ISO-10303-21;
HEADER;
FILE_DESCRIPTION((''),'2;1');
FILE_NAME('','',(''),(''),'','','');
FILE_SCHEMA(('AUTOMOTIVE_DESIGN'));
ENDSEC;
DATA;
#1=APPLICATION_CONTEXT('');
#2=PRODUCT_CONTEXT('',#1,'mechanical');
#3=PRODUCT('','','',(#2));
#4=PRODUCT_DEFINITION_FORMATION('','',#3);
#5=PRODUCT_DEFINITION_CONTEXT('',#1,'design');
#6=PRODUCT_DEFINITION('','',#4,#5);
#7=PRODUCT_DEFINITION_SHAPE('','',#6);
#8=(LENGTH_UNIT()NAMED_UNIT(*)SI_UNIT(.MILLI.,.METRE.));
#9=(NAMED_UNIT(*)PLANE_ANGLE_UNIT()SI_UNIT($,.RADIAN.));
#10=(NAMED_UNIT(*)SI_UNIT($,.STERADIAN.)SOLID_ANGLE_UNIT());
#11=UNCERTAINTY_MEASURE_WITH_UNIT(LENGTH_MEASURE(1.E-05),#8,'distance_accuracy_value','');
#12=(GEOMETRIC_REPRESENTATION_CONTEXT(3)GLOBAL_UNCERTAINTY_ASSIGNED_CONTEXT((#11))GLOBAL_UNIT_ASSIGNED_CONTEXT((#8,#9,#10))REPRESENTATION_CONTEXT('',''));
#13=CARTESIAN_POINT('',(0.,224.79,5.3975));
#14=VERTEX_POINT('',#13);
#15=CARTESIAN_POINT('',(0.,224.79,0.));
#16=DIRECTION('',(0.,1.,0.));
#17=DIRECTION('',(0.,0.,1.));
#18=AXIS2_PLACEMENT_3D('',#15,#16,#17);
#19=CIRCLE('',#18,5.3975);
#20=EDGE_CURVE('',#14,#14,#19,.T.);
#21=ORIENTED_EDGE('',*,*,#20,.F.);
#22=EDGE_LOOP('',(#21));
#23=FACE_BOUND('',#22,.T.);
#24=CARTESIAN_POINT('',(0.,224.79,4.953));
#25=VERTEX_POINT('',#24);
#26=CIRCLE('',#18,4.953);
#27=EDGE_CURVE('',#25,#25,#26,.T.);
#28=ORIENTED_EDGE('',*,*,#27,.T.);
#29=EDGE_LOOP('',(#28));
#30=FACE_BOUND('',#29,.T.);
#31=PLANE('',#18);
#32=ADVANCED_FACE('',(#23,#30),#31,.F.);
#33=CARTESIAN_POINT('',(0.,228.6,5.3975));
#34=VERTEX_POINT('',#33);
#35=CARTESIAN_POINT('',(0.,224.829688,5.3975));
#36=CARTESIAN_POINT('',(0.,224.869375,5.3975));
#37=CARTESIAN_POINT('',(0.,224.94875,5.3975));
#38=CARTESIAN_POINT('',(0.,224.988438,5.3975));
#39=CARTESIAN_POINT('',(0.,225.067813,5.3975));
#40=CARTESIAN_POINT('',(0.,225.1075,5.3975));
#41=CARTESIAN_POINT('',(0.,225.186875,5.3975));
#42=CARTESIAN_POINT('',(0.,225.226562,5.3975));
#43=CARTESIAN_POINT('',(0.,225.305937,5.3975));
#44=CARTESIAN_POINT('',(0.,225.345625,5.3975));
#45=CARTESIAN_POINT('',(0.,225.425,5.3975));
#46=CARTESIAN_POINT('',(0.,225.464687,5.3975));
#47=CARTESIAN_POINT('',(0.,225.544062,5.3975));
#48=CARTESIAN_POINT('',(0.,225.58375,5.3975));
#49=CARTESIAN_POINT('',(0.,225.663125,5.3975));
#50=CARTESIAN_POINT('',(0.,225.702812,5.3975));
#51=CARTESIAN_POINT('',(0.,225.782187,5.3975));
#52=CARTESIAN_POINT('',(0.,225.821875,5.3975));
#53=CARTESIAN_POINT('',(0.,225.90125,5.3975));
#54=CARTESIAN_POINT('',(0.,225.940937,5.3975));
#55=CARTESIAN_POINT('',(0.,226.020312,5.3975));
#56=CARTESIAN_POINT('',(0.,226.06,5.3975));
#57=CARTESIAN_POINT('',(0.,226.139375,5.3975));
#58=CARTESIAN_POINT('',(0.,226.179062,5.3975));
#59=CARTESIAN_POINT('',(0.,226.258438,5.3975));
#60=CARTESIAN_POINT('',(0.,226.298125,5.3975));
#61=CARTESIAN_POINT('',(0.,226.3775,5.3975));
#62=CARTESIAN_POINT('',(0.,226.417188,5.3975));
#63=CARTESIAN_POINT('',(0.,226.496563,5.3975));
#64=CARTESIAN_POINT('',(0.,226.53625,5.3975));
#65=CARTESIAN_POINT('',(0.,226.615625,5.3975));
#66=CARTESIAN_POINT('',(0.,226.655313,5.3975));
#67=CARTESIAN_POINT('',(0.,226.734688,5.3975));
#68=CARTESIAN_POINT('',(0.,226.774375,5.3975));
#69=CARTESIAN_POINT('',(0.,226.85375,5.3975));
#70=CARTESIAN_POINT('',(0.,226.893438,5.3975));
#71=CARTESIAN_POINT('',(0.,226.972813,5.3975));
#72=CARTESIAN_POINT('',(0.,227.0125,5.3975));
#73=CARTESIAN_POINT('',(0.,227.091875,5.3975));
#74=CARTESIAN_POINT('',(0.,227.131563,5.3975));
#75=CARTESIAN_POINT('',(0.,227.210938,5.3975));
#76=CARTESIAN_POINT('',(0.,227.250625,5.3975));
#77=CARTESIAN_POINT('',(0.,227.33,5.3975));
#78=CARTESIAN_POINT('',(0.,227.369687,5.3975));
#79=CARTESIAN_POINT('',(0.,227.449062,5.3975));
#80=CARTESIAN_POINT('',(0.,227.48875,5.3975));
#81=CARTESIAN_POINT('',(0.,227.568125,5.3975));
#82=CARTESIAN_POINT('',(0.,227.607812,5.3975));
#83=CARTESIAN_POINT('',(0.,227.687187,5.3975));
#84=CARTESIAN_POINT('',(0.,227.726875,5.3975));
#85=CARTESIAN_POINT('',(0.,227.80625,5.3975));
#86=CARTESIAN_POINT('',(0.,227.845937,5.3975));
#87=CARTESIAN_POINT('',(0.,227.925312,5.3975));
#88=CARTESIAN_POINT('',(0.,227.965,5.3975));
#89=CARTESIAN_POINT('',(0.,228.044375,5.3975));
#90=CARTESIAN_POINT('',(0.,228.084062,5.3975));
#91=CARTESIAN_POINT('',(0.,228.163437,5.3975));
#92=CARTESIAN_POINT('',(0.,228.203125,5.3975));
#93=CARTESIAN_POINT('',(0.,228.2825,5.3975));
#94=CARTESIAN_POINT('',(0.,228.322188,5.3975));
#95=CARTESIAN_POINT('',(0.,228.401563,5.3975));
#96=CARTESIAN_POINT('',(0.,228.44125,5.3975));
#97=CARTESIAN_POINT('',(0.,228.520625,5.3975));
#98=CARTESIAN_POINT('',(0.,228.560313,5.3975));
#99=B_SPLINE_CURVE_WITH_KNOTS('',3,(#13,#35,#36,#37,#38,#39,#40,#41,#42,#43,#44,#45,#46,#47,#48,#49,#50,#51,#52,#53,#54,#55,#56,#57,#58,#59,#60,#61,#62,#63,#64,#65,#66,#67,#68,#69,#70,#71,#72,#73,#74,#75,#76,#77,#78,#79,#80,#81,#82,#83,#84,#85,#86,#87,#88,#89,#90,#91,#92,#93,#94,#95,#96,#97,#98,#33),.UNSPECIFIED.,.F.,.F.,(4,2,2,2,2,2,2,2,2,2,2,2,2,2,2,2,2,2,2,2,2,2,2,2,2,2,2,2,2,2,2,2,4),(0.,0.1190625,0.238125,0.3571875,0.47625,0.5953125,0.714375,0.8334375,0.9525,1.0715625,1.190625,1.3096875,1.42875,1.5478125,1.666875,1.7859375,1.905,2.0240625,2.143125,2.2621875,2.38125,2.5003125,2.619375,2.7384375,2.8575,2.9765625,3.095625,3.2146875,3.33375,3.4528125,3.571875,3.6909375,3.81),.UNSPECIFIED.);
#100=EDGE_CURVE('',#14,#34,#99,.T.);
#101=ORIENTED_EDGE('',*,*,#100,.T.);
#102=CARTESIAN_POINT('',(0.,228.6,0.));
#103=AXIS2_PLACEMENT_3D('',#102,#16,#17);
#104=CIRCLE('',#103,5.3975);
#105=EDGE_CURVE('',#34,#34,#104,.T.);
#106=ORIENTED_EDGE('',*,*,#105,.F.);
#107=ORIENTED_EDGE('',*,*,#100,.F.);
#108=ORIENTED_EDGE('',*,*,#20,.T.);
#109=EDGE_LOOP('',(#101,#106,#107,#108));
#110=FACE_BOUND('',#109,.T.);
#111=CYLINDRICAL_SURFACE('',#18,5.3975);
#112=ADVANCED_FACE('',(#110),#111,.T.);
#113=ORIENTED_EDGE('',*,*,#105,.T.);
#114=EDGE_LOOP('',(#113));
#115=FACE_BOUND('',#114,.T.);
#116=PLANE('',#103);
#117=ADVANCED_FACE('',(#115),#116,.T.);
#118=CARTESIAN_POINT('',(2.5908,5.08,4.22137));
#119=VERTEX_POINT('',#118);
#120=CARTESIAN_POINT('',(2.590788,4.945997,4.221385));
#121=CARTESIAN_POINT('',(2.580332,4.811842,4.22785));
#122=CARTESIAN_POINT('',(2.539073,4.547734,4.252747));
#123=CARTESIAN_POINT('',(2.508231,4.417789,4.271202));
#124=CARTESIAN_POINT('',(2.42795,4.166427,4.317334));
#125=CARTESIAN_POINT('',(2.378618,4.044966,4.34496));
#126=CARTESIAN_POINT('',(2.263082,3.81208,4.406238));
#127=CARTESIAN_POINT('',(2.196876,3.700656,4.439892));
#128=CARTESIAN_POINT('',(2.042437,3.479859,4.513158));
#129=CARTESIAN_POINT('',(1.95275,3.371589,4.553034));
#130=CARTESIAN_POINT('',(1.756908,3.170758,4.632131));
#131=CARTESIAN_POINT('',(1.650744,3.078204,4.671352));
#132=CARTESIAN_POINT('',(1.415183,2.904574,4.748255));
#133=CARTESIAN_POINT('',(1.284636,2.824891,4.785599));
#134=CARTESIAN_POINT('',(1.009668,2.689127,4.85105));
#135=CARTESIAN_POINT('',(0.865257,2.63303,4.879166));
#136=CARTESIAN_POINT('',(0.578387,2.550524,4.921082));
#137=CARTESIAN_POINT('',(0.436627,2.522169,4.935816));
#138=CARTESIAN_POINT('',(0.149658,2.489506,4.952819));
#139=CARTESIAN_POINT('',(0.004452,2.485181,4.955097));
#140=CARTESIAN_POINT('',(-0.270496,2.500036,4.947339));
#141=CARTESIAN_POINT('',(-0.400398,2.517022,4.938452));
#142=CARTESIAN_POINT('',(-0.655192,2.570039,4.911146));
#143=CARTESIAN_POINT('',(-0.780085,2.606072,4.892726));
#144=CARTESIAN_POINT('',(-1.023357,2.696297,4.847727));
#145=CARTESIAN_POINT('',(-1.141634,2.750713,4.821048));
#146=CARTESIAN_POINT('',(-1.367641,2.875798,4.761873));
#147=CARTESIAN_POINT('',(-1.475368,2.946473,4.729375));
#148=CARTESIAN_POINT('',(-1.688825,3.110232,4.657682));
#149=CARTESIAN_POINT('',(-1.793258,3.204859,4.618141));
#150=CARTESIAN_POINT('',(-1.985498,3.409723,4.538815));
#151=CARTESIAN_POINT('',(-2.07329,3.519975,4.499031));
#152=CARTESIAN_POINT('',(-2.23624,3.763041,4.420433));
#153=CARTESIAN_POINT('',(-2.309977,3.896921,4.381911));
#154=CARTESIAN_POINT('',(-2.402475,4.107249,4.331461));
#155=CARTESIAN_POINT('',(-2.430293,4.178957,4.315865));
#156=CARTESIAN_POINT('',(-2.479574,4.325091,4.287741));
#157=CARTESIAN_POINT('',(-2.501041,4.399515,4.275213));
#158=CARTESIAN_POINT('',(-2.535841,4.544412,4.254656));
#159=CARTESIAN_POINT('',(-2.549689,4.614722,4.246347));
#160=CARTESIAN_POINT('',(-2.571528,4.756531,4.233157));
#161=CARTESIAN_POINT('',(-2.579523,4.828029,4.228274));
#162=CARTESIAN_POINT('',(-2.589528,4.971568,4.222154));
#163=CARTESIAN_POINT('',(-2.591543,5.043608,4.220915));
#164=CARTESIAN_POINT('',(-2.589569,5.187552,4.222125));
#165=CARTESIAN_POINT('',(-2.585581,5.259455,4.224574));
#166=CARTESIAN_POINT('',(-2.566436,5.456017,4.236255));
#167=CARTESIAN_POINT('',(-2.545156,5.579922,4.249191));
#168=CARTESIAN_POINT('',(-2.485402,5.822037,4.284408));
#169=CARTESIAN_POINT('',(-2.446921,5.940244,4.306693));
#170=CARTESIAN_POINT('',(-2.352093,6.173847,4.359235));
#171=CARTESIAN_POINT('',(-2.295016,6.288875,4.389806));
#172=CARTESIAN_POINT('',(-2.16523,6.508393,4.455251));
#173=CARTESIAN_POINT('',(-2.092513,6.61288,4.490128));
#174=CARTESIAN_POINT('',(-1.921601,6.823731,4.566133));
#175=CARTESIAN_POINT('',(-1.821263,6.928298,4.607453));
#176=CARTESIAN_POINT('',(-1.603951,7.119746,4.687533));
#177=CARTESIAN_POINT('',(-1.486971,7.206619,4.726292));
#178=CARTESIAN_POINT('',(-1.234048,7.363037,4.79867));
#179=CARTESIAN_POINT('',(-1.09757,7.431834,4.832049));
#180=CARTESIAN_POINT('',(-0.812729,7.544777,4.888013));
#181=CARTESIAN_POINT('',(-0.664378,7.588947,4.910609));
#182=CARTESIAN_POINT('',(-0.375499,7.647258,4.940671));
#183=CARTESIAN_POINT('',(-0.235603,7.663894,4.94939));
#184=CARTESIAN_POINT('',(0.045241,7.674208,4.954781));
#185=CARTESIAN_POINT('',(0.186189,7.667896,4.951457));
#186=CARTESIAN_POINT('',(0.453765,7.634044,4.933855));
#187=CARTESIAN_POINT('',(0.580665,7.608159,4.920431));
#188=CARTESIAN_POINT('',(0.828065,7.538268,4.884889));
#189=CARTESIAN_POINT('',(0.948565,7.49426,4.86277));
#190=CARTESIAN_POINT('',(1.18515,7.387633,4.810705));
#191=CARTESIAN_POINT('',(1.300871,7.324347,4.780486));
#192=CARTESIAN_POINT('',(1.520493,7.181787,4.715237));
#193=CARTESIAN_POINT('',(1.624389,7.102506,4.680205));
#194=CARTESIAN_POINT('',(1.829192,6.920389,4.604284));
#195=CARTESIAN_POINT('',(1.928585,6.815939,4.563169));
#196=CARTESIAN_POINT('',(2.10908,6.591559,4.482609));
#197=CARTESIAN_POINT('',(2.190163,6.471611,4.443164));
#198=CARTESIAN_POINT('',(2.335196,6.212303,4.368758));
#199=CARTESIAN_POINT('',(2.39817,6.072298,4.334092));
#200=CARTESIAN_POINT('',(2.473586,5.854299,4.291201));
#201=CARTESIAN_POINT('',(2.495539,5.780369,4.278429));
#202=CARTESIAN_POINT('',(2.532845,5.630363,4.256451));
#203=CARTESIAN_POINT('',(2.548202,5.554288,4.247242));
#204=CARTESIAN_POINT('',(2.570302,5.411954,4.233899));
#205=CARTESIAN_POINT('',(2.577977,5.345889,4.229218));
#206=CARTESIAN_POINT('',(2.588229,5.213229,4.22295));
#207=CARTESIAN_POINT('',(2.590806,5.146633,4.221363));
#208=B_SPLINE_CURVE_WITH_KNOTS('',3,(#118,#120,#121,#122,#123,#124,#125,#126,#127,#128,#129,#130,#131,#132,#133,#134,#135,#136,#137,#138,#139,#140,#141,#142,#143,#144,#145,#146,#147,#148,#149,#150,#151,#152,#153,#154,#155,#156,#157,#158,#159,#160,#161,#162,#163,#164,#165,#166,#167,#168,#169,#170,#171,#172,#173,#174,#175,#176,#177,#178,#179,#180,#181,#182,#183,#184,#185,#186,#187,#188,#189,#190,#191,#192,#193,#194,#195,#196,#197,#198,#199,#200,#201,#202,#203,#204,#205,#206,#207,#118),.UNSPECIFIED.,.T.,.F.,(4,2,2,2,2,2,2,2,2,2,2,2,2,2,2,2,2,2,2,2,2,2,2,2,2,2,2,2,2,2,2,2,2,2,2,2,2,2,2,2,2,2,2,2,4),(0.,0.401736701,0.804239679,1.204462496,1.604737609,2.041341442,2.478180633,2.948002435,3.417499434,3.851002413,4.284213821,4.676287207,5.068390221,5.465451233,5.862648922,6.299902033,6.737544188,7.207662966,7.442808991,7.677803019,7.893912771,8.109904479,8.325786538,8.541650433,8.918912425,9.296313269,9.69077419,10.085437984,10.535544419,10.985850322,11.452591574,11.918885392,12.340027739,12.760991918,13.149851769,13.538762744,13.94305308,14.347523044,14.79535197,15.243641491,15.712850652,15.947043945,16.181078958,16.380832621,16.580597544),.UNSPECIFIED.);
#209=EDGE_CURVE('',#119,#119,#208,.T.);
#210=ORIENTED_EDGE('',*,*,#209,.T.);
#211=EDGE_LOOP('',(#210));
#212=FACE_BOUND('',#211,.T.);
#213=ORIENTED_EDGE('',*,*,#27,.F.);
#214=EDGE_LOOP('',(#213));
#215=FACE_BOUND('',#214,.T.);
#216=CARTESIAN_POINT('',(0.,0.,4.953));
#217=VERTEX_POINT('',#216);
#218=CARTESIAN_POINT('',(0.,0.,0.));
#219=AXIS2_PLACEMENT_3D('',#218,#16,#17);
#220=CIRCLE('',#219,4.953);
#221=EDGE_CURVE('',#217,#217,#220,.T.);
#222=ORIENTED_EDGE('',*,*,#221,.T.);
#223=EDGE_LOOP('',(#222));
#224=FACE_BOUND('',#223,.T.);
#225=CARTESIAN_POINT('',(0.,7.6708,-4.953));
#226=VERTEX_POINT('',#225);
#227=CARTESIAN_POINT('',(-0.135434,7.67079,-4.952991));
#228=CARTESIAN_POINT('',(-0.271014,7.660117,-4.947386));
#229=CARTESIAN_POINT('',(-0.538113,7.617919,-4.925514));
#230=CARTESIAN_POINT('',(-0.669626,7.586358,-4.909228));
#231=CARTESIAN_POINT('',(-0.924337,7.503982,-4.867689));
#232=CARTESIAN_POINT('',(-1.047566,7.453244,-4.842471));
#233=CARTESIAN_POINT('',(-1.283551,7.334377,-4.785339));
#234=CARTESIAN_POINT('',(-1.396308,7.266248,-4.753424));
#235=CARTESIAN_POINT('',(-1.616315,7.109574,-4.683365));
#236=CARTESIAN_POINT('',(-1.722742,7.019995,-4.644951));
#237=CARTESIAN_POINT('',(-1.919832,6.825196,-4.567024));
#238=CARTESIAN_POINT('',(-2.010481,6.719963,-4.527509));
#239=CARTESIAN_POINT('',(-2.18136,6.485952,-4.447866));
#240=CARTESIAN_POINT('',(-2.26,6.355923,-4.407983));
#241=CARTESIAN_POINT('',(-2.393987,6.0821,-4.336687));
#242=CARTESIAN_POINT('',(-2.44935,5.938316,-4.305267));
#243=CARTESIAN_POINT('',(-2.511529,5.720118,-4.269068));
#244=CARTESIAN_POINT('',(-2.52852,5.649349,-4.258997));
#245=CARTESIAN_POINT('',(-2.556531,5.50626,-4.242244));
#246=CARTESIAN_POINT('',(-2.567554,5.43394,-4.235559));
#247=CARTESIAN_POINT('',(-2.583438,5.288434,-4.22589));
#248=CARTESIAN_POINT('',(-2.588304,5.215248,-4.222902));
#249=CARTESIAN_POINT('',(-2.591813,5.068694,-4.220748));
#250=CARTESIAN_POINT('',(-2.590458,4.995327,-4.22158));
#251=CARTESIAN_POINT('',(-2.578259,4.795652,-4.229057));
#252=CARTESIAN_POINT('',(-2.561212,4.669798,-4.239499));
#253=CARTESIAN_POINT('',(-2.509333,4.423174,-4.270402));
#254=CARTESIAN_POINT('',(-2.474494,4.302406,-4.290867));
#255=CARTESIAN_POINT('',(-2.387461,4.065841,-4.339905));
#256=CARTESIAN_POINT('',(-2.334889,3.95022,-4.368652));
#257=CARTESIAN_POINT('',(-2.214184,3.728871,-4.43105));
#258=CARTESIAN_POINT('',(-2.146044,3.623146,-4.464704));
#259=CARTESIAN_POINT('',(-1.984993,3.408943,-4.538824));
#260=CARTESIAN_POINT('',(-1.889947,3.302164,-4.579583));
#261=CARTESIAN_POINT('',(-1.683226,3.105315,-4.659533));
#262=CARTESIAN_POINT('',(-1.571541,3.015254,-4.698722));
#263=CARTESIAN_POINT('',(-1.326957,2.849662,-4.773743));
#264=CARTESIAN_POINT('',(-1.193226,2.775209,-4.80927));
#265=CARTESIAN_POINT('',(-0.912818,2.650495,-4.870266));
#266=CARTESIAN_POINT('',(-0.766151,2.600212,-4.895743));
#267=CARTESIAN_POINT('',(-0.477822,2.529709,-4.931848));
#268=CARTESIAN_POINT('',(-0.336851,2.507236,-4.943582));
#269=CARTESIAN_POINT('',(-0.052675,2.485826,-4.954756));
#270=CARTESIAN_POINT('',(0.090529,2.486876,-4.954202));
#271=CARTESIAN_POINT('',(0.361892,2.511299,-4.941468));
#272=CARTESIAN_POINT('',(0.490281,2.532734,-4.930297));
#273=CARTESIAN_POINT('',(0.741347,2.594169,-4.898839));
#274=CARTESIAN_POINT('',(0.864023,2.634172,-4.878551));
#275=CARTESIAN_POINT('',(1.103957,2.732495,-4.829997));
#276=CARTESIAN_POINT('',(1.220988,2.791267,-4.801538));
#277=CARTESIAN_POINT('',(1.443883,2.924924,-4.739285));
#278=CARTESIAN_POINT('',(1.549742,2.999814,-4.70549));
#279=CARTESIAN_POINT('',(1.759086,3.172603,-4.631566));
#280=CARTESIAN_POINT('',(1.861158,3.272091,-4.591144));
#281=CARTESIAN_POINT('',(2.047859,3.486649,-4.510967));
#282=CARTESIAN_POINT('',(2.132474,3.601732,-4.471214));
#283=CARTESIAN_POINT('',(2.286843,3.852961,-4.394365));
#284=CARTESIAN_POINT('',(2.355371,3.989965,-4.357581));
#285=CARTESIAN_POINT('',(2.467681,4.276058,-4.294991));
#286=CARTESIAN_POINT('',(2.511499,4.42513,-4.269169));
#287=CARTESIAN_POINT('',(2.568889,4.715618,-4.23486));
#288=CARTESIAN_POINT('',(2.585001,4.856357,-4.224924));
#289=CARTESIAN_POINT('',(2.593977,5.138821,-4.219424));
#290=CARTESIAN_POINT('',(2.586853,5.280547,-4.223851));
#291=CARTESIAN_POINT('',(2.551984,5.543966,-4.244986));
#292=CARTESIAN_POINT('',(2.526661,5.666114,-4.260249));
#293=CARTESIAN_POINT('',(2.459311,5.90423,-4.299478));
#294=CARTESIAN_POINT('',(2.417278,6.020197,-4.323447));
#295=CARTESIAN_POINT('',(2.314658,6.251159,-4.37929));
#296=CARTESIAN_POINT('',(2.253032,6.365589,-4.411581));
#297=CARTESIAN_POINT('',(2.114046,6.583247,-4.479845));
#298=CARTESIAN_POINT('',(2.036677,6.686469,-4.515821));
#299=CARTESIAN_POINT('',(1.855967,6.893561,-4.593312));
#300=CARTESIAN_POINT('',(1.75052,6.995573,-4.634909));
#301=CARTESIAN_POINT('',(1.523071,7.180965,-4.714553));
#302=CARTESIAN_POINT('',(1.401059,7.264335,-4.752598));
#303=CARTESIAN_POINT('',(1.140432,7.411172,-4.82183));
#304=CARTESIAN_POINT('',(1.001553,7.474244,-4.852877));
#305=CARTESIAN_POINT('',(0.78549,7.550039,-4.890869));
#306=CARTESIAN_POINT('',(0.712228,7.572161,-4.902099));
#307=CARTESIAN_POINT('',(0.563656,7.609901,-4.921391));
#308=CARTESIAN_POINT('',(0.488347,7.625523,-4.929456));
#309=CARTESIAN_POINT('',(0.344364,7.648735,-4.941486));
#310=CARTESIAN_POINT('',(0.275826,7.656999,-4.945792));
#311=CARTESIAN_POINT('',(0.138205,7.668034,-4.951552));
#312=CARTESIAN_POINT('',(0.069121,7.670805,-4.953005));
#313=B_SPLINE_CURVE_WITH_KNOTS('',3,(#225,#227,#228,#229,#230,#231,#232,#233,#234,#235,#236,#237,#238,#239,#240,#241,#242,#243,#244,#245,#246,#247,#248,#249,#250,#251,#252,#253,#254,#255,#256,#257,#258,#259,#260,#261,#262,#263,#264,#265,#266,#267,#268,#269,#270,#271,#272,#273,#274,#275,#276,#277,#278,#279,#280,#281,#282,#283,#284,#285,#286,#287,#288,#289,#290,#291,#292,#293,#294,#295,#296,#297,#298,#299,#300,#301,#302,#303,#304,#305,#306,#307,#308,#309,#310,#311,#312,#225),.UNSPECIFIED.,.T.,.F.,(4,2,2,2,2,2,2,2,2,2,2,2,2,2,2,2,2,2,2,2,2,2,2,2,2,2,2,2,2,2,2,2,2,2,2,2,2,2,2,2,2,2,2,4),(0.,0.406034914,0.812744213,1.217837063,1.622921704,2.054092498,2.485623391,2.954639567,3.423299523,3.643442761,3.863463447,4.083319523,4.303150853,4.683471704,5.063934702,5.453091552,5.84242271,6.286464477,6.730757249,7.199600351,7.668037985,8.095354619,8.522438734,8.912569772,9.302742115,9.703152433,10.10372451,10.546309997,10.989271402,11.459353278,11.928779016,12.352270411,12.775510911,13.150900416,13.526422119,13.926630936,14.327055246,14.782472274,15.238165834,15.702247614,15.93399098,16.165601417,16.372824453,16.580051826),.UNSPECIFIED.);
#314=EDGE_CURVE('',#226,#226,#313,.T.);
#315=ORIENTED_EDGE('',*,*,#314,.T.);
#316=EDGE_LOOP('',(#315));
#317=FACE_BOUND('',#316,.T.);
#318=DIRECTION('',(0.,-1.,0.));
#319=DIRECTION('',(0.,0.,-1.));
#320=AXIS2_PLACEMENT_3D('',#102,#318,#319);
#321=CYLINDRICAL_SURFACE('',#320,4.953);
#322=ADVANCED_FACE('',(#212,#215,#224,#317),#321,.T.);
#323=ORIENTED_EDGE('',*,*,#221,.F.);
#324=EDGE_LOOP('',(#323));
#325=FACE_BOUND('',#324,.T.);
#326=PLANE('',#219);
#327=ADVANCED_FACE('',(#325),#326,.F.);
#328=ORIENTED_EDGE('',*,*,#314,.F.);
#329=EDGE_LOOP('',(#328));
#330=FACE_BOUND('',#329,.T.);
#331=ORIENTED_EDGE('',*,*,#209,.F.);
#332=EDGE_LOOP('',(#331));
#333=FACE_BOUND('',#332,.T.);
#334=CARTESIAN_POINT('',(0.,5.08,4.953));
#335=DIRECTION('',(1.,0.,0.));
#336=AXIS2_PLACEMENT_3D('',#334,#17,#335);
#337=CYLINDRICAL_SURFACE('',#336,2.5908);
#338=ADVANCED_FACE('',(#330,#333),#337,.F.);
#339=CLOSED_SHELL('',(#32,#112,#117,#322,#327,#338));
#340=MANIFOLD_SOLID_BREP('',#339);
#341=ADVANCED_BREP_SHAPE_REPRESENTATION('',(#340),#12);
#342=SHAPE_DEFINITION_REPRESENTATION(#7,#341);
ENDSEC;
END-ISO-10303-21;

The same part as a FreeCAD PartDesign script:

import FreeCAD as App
import Part
import Sketcher
Q = App.Units.Quantity

doc = App.newDocument("Part")
body = doc.addObject("PartDesign::Body", "Body")

sketch1 = body.newObject("Sketcher::SketchObject", "Sketch")
sketch1.AttachmentSupport = (doc.getObject("XZ_Plane"), [""])
sketch1.MapMode = "FlatFace"
sketch1.addGeometry(Part.Circle(App.Vector(0, 0, 0), App.Vector(0, 0, 1), 5), False)
sketch1.addConstraint(Sketcher.Constraint("Coincident", 0, 3, -1, 1))
sketch1.addConstraint(Sketcher.Constraint("Diameter", 0, Q("0.39 in")))
pad1 = body.newObject("PartDesign::Pad", "Pad")
pad1.Profile = sketch1
pad1.Length = Q("9 in")
pad1.Reversed = True

sketch2 = body.newObject("Sketcher::SketchObject", "Sketch001")
sketch2.AttachmentSupport = (doc.getObject("XZ_Plane"), [""])
sketch2.MapMode = "FlatFace"
sketch2.AttachmentOffset = App.Placement(App.Vector(0, 0, -8.85 * 25.4), App.Rotation())
sketch2.addGeometry(Part.Circle(App.Vector(0, 0, 0), App.Vector(0, 0, 1), 5.4), False)
sketch2.addGeometry(Part.Circle(App.Vector(0, 0, 0), App.Vector(0, 0, 1), 5), False)
sketch2.addConstraint(Sketcher.Constraint("Coincident", 0, 3, -1, 1))
sketch2.addConstraint(Sketcher.Constraint("Coincident", 1, 3, -1, 1))
sketch2.addConstraint(Sketcher.Constraint("Diameter", 1, Q("0.39 in")))
sketch2.addConstraint(Sketcher.Constraint("Diameter", 0, Q("0.425 in")))
pad2 = body.newObject("PartDesign::Pad", "Pad001")
pad2.Profile = sketch2
pad2.Length = Q("0.15 in")
pad2.Reversed = True

sketch3 = body.newObject("Sketcher::SketchObject", "Sketch002")
sketch3.AttachmentSupport = (doc.getObject("XY_Plane"), [""])
sketch3.MapMode = "FlatFace"
sketch3.AttachmentOffset = App.Placement(App.Vector(0, 0, 0.195 * 25.4), App.Rotation())
sketch3.addGeometry(Part.Circle(App.Vector(0, 5.1, 0), App.Vector(0, 0, 1), 2.6), False)
sketch3.addConstraint(Sketcher.Constraint("PointOnObject", 0, 3, -2))
sketch3.addConstraint(Sketcher.Constraint("Diameter", 0, Q("0.204 in")))
sketch3.addConstraint(Sketcher.Constraint("DistanceY", -1, 1, 0, 3, Q("0.2 in")))
doc.recompute()
hole = body.newObject("PartDesign::Hole", "Hole")
hole.Profile = sketch3
hole.ThreadType = "None"
hole.Diameter = Q("0.204 in")
hole.DepthType = "ThroughAll"

doc.recompute()
